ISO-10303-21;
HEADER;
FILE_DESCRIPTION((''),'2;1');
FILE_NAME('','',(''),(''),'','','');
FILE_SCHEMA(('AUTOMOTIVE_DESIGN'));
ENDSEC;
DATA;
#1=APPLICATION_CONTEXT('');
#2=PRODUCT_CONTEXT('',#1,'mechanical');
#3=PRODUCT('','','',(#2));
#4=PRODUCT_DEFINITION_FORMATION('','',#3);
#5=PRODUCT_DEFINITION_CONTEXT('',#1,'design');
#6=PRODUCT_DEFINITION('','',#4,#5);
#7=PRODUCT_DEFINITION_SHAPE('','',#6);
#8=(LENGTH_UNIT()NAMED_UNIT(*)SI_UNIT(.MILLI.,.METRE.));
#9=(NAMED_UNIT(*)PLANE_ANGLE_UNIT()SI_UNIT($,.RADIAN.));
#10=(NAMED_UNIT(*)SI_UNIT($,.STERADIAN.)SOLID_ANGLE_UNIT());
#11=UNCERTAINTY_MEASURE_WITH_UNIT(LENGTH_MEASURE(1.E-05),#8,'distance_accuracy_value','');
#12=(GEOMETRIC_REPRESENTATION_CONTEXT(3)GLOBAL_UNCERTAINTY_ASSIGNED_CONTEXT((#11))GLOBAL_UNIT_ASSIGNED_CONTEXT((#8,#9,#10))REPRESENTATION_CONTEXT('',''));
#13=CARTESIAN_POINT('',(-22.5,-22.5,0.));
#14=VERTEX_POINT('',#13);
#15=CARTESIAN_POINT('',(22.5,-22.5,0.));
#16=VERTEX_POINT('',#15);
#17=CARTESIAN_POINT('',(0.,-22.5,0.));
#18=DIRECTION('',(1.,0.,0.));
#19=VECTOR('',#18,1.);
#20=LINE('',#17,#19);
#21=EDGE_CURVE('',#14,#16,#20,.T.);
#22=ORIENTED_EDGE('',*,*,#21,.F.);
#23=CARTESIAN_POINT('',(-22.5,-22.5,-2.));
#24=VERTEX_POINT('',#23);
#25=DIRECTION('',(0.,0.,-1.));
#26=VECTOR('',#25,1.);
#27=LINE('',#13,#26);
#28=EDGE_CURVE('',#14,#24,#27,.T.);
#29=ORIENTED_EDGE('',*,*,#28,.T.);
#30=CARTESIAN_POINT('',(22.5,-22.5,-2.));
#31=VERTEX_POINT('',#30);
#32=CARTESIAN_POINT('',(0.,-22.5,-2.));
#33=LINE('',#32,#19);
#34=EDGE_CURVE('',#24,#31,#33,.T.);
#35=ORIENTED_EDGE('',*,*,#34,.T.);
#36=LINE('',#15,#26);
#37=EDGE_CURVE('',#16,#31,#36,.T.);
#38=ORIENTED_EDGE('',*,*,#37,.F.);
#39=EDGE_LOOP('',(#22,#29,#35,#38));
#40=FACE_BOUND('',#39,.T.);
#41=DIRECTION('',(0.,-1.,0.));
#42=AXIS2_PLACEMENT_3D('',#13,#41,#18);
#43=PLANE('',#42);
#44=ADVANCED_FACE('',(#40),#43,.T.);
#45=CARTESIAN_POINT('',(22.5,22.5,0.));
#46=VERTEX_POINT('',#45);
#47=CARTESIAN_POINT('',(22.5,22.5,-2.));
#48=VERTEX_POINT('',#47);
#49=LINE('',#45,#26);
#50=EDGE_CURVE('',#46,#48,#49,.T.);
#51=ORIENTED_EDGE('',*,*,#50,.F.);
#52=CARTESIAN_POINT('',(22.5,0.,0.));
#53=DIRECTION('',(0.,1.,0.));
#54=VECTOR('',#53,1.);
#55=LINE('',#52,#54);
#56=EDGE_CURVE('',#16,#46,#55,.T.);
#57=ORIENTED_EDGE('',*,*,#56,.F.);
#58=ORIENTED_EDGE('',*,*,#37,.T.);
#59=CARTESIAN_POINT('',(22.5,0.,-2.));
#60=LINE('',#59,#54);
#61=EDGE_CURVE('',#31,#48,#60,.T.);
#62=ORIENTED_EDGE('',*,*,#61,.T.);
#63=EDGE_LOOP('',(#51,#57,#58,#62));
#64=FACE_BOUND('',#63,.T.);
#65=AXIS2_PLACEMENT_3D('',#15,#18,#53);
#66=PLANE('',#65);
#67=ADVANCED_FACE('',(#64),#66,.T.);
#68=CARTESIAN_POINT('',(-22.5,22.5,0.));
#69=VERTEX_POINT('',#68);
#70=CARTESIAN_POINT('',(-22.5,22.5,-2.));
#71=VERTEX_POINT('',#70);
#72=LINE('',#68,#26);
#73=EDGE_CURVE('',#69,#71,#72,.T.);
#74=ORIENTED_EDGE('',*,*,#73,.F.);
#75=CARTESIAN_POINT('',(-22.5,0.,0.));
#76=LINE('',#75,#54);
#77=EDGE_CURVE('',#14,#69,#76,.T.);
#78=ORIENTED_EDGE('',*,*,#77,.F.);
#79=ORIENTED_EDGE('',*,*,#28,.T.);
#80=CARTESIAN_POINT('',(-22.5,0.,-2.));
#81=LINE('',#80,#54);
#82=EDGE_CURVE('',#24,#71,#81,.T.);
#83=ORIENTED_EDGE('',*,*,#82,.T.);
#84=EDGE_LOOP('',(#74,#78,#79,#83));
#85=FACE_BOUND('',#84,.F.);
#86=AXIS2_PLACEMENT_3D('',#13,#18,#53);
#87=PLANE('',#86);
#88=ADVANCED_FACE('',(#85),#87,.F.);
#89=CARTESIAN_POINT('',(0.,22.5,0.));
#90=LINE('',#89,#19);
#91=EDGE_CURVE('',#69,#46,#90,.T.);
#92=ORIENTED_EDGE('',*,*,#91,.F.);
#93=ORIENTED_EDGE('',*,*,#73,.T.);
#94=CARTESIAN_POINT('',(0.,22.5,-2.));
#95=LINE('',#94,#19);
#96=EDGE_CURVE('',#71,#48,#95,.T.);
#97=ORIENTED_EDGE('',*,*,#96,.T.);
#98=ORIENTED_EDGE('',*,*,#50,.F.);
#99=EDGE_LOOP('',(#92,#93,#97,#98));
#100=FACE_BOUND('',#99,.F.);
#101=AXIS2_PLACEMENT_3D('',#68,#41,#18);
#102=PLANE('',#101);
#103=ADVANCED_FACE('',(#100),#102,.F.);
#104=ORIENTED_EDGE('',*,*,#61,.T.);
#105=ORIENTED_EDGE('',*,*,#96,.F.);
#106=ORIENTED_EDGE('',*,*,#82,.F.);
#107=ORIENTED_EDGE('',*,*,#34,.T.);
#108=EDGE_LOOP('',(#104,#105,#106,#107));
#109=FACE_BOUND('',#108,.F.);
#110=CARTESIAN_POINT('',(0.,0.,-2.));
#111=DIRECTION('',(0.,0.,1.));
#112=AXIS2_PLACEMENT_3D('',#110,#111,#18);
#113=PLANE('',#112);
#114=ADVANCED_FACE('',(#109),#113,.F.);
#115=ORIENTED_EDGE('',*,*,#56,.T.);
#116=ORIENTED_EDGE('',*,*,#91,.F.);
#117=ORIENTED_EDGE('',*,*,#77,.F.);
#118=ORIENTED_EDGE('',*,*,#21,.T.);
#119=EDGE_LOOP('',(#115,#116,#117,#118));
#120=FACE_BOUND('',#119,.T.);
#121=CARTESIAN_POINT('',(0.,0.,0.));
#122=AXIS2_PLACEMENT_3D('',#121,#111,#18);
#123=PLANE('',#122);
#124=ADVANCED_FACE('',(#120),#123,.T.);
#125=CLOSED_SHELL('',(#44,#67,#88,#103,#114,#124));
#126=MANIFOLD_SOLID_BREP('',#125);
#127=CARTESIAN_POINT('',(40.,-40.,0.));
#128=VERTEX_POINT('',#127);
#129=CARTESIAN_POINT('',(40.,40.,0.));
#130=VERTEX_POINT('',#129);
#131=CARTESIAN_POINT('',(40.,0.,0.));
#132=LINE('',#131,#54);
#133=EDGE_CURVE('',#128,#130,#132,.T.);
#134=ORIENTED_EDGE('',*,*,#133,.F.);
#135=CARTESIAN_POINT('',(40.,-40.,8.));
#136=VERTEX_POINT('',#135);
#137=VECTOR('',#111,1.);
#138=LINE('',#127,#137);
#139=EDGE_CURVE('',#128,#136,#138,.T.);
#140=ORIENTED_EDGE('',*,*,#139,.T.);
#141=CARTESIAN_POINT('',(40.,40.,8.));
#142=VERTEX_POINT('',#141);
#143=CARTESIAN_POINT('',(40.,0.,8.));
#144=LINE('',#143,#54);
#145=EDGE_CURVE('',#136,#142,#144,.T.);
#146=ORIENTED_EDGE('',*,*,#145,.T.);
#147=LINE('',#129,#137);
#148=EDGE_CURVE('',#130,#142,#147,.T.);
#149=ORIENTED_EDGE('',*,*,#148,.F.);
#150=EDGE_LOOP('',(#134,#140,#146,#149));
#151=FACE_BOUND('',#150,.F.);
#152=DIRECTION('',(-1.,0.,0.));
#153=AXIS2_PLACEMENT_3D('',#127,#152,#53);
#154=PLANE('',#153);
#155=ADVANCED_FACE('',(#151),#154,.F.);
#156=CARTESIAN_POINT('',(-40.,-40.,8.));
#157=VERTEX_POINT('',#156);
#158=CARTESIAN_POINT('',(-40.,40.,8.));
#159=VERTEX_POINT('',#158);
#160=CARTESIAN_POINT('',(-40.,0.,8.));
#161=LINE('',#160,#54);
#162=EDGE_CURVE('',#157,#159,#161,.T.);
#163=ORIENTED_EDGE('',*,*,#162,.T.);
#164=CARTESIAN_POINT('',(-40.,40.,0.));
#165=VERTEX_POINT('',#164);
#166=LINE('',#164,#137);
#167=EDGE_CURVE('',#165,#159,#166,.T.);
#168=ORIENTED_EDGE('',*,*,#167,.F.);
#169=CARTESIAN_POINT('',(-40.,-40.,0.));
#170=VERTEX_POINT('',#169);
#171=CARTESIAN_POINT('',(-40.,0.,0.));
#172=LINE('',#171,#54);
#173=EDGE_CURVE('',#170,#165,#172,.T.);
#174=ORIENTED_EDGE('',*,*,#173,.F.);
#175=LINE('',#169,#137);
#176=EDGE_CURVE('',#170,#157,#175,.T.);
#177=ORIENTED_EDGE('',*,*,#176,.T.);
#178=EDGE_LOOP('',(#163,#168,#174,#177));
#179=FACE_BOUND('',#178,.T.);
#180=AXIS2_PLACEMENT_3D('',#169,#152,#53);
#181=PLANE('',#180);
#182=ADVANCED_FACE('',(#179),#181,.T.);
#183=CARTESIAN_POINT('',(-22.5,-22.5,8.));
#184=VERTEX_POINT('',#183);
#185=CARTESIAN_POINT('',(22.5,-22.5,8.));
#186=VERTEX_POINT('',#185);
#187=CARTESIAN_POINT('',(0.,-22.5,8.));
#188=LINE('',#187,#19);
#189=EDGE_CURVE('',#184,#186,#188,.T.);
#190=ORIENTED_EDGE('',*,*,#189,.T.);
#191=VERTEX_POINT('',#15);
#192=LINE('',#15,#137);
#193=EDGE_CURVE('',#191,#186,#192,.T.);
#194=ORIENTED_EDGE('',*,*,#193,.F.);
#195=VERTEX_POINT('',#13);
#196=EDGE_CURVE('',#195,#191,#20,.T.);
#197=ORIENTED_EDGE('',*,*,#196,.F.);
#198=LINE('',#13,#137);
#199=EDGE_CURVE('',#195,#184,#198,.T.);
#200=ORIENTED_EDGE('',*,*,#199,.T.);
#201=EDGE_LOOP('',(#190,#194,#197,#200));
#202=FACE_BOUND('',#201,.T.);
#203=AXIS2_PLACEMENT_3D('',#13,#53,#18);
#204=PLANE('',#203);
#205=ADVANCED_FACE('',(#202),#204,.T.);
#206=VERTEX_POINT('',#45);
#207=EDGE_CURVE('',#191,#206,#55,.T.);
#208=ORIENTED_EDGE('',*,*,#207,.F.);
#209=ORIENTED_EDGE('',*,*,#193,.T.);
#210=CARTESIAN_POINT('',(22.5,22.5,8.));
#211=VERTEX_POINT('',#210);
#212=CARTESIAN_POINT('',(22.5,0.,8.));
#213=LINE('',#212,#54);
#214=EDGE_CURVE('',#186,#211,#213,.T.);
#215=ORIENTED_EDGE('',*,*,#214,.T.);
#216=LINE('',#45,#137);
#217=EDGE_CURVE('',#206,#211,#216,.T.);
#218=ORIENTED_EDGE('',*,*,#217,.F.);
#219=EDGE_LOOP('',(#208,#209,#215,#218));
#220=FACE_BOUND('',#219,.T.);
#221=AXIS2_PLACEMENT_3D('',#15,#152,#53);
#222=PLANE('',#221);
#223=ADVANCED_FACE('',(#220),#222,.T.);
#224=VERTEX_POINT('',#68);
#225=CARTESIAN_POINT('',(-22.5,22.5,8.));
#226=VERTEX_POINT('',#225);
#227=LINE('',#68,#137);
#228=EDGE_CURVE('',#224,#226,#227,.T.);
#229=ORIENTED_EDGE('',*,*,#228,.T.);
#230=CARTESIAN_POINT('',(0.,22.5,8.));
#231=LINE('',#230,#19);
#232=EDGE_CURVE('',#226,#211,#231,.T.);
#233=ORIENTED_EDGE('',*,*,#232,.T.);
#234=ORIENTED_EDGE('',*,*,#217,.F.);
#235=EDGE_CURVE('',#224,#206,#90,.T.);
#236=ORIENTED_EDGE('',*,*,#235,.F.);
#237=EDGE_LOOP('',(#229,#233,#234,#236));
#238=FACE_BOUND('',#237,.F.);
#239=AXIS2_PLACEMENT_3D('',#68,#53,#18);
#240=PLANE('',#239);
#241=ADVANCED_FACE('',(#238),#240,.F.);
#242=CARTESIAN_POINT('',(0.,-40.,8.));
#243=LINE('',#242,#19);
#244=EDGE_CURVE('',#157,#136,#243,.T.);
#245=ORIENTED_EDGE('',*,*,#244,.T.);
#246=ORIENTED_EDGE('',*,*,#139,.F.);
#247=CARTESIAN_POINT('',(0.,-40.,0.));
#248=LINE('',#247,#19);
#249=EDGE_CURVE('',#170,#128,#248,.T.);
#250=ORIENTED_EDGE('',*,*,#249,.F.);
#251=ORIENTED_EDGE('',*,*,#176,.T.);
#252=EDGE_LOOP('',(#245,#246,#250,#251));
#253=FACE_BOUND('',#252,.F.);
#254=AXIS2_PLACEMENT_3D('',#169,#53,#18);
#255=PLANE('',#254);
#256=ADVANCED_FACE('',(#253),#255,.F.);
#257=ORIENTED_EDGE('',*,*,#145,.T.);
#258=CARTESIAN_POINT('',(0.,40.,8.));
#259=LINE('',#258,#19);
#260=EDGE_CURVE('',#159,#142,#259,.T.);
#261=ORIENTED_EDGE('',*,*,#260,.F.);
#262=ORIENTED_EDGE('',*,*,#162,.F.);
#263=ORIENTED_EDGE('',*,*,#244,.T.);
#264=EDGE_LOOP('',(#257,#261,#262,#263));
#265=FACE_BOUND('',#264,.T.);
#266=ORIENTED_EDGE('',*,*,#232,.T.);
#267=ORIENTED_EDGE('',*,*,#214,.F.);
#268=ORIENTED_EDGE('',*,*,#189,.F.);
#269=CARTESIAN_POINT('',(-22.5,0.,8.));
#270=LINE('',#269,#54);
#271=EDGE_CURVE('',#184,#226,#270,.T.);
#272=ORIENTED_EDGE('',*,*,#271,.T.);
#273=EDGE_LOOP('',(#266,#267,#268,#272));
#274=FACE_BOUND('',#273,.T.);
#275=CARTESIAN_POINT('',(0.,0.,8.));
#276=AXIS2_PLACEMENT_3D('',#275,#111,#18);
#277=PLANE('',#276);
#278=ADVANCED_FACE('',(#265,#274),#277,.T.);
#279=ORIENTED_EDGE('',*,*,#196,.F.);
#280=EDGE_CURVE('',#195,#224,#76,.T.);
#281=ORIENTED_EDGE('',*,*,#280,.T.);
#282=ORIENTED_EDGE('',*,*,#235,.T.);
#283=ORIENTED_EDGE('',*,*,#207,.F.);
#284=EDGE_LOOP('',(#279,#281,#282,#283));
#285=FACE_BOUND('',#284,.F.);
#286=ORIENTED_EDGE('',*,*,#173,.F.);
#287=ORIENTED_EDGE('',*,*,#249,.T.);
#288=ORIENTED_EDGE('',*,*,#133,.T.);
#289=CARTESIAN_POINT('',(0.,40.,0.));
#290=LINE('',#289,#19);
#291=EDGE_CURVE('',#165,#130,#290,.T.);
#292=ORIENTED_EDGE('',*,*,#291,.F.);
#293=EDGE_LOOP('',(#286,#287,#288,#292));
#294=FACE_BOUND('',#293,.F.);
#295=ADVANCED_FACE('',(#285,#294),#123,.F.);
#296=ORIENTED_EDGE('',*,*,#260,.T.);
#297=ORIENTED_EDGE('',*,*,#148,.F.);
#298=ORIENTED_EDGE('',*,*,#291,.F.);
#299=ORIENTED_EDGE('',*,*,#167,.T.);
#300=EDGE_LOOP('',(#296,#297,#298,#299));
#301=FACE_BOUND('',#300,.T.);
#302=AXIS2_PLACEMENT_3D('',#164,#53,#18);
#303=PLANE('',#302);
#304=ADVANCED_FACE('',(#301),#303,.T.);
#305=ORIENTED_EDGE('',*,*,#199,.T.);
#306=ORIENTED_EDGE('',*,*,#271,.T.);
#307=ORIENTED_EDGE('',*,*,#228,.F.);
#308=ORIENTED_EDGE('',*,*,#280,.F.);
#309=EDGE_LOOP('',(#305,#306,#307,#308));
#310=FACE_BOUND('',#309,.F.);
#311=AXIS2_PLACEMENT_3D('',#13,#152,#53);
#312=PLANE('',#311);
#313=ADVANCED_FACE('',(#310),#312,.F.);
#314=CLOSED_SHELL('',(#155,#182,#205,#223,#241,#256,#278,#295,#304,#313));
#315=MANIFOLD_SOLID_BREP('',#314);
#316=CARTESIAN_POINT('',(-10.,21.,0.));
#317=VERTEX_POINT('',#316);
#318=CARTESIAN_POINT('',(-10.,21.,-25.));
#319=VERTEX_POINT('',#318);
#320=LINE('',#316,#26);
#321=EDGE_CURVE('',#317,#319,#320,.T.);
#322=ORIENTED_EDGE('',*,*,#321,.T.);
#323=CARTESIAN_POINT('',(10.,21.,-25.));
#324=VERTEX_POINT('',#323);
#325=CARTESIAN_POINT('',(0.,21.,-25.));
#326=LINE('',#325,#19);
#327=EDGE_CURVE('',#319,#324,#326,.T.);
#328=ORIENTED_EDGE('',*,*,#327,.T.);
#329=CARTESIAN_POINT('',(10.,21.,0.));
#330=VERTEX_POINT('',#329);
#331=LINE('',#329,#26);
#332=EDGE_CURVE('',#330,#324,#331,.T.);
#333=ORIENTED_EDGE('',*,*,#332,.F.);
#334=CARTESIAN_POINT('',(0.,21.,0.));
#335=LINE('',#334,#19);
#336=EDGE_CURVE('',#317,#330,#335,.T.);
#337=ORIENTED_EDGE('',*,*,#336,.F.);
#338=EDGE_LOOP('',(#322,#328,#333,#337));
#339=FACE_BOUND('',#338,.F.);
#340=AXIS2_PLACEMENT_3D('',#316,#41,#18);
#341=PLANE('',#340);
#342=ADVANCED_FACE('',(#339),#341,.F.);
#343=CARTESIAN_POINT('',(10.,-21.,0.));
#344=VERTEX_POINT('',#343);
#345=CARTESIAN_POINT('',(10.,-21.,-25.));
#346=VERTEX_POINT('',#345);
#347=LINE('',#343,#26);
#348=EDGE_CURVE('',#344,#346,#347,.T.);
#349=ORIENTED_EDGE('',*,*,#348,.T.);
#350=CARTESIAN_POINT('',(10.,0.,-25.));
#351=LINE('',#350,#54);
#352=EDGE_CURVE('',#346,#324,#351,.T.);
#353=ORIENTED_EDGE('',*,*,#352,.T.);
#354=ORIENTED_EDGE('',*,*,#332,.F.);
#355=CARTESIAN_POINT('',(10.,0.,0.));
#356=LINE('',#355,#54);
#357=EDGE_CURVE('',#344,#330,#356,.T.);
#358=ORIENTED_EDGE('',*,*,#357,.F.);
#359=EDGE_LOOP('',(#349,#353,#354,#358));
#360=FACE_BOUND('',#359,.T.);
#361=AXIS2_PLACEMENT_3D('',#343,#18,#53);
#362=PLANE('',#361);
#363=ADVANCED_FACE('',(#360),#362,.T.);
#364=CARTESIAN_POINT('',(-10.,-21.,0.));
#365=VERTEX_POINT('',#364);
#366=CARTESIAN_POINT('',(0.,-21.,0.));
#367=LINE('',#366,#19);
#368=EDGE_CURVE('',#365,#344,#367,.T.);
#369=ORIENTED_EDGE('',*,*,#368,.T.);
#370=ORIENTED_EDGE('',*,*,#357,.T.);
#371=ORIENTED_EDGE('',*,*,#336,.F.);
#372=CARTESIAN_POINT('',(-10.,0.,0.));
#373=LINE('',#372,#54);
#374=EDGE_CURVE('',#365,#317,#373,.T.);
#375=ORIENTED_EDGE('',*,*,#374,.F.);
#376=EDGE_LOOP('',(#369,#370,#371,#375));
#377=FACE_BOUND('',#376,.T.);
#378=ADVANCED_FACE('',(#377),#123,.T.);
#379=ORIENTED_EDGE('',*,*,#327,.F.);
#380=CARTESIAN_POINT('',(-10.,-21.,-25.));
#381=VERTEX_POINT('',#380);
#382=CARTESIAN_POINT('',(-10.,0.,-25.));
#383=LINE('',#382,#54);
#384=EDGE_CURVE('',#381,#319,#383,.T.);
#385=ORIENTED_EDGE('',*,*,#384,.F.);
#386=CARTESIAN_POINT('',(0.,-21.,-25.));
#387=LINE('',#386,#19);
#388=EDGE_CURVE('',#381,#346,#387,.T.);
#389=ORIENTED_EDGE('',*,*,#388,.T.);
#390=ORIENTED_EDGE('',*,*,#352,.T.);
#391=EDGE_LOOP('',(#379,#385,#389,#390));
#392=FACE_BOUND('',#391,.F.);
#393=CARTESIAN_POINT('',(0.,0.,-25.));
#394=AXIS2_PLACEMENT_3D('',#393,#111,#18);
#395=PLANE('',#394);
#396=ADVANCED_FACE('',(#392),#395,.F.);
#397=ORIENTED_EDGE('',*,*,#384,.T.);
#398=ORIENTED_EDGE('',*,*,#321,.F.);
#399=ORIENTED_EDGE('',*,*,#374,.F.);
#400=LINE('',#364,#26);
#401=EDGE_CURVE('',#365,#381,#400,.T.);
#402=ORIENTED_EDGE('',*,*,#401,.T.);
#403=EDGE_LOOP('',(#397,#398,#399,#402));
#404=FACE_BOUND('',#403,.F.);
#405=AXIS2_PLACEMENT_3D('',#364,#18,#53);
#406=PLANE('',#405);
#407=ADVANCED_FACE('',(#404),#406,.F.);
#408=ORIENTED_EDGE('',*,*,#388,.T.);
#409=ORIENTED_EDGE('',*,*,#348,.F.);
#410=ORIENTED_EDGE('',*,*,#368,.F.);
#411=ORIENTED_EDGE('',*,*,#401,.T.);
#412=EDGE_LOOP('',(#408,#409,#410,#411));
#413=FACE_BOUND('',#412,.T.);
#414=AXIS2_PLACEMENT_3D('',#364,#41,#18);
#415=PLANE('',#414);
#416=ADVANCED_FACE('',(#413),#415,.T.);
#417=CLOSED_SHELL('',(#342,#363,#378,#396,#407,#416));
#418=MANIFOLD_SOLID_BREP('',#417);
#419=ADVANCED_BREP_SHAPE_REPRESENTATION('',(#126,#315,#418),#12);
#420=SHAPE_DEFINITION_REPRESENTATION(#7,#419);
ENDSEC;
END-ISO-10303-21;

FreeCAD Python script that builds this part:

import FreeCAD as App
import Part
import Sketcher
from FreeCAD import Vector

doc = App.newDocument("Part")
params = doc.addObject("Spreadsheet::Sheet", "Params")
for row, (alias, value) in enumerate([
    ("sketch1_width", "80 mm"),
    ("sketch1_width2", "45 mm"),
    ("pad1_length", "8 mm"),
    ("sketch2_width", "20 mm"),
    ("sketch2_height", "42 mm"),
    ("pad2_length", "25 mm"),
    ("sketch3_width", "45 mm"),
    ("pad3_length", "2 mm"),
], start=1):
    params.set(f"A{row}", alias)
    params.set(f"B{row}", "=" + value)
    params.setAlias(f"B{row}", alias)

body = doc.addObject("PartDesign::Body", "Body")

# Sketch on XY plane
sketch1 = body.newObject("Sketcher::SketchObject", "Sketch")
sketch1.AttachmentSupport = (doc.getObject("XY_Plane"), [""])
sketch1.MapMode = "FlatFace"
sketch1.addGeometry(Part.LineSegment(Vector(-40, 40, 0), Vector(-40, -40, 0)), False)
sketch1.addGeometry(Part.LineSegment(Vector(-40, -40, 0), Vector(40, -40, 0)), False)
sketch1.addGeometry(Part.LineSegment(Vector(40, -40, 0), Vector(40, 40, 0)), False)
sketch1.addGeometry(Part.LineSegment(Vector(40, 40, 0), Vector(-40, 40, 0)), False)
sketch1.addGeometry(Part.LineSegment(Vector(22, -22, 0), Vector(-22, -22, 0)), False)
sketch1.addGeometry(Part.LineSegment(Vector(-22, -22, 0), Vector(-22, 22, 0)), False)
sketch1.addGeometry(Part.LineSegment(Vector(-22, 22, 0), Vector(22, 22, 0)), False)
sketch1.addGeometry(Part.LineSegment(Vector(22, 22, 0), Vector(22, -22, 0)), False)
sketch1.addConstraint(Sketcher.Constraint("Coincident", 0, 2, 1, 1))
sketch1.addConstraint(Sketcher.Constraint("Coincident", 1, 2, 2, 1))
sketch1.addConstraint(Sketcher.Constraint("Coincident", 2, 2, 3, 1))
sketch1.addConstraint(Sketcher.Constraint("Coincident", 3, 2, 0, 1))
sketch1.addConstraint(Sketcher.Constraint("Coincident", 4, 2, 5, 1))
sketch1.addConstraint(Sketcher.Constraint("Coincident", 5, 2, 6, 1))
sketch1.addConstraint(Sketcher.Constraint("Coincident", 6, 2, 7, 1))
sketch1.addConstraint(Sketcher.Constraint("Coincident", 7, 2, 4, 1))
sketch1.addConstraint(Sketcher.Constraint("Vertical", 0))
sketch1.addConstraint(Sketcher.Constraint("Horizontal", 1))
sketch1.addConstraint(Sketcher.Constraint("Vertical", 2))
sketch1.addConstraint(Sketcher.Constraint("Horizontal", 3))
sketch1.addConstraint(Sketcher.Constraint("Horizontal", 4))
sketch1.addConstraint(Sketcher.Constraint("Vertical", 5))
sketch1.addConstraint(Sketcher.Constraint("Horizontal", 6))
sketch1.addConstraint(Sketcher.Constraint("Vertical", 7))
sketch1.addConstraint(Sketcher.Constraint("Symmetric", 0, 2, 2, 2, -1, 1))
sketch1.addConstraint(Sketcher.Constraint("Symmetric", 4, 2, 6, 2, -1, 1))
sketch1.addConstraint(Sketcher.Constraint("Equal", 3, 0))
sketch1.addConstraint(Sketcher.Constraint("Equal", 6, 5))
sketch1.addConstraint(Sketcher.Constraint("DistanceX", 1, 1, 1, 2, 80.0))
sketch1.addConstraint(Sketcher.Constraint("DistanceX", 4, 2, 4, 1, 45.0))
sketch1.setExpression("Constraints[20]", "Params.sketch1_width")
sketch1.setExpression("Constraints[21]", "Params.sketch1_width2")
pad1 = body.newObject("PartDesign::Pad", "Pad")
pad1.Profile = sketch1
pad1.setExpression("Length", "Params.pad1_length")
body2 = doc.addObject("PartDesign::Body", "Body001")

# Sketch on XY plane
sketch2 = body2.newObject("Sketcher::SketchObject", "Sketch001")
sketch2.AttachmentSupport = (doc.getObject("XY_Plane001"), [""])
sketch2.MapMode = "FlatFace"
sketch2.addGeometry(Part.LineSegment(Vector(-10, 21, 0), Vector(-10, -21, 0)), False)
sketch2.addGeometry(Part.LineSegment(Vector(-10, -21, 0), Vector(10, -21, 0)), False)
sketch2.addGeometry(Part.LineSegment(Vector(10, -21, 0), Vector(10, 21, 0)), False)
sketch2.addGeometry(Part.LineSegment(Vector(10, 21, 0), Vector(-10, 21, 0)), False)
sketch2.addConstraint(Sketcher.Constraint("Coincident", 0, 2, 1, 1))
sketch2.addConstraint(Sketcher.Constraint("Coincident", 1, 2, 2, 1))
sketch2.addConstraint(Sketcher.Constraint("Coincident", 2, 2, 3, 1))
sketch2.addConstraint(Sketcher.Constraint("Coincident", 3, 2, 0, 1))
sketch2.addConstraint(Sketcher.Constraint("Vertical", 0))
sketch2.addConstraint(Sketcher.Constraint("Horizontal", 1))
sketch2.addConstraint(Sketcher.Constraint("Vertical", 2))
sketch2.addConstraint(Sketcher.Constraint("Horizontal", 3))
sketch2.addConstraint(Sketcher.Constraint("Symmetric", 0, 2, 2, 2, -1, 1))
sketch2.addConstraint(Sketcher.Constraint("DistanceX", 1, 1, 1, 2, 20.0))
sketch2.addConstraint(Sketcher.Constraint("DistanceY", 0, 2, 0, 1, 42.0))
sketch2.setExpression("Constraints[9]", "Params.sketch2_width")
sketch2.setExpression("Constraints[10]", "Params.sketch2_height")
pad2 = body2.newObject("PartDesign::Pad", "Pad001")
pad2.Profile = sketch2
pad2.setExpression("Length", "Params.pad2_length")
pad2.Reversed = True
body3 = doc.addObject("PartDesign::Body", "Body002")

# Sketch on XY plane
sketch3 = body3.newObject("Sketcher::SketchObject", "Sketch002")
sketch3.AttachmentSupport = (doc.getObject("XY_Plane002"), [""])
sketch3.MapMode = "FlatFace"
sketch3.addGeometry(Part.LineSegment(Vector(-22, 22, 0), Vector(-22, -22, 0)), False)
sketch3.addGeometry(Part.LineSegment(Vector(-22, -22, 0), Vector(22, -22, 0)), False)
sketch3.addGeometry(Part.LineSegment(Vector(22, -22, 0), Vector(22, 22, 0)), False)
sketch3.addGeometry(Part.LineSegment(Vector(22, 22, 0), Vector(-22, 22, 0)), False)
sketch3.addConstraint(Sketcher.Constraint("Coincident", 0, 2, 1, 1))
sketch3.addConstraint(Sketcher.Constraint("Coincident", 1, 2, 2, 1))
sketch3.addConstraint(Sketcher.Constraint("Coincident", 2, 2, 3, 1))
sketch3.addConstraint(Sketcher.Constraint("Coincident", 3, 2, 0, 1))
sketch3.addConstraint(Sketcher.Constraint("Vertical", 0))
sketch3.addConstraint(Sketcher.Constraint("Horizontal", 1))
sketch3.addConstraint(Sketcher.Constraint("Vertical", 2))
sketch3.addConstraint(Sketcher.Constraint("Horizontal", 3))
sketch3.addConstraint(Sketcher.Constraint("Symmetric", 0, 2, 2, 2, -1, 1))
sketch3.addConstraint(Sketcher.Constraint("Equal", 3, 0))
sketch3.addConstraint(Sketcher.Constraint("DistanceX", 1, 1, 1, 2, 45.0))
sketch3.setExpression("Constraints[10]", "Params.sketch3_width")
pad3 = body3.newObject("PartDesign::Pad", "Pad002")
pad3.Profile = sketch3
pad3.setExpression("Length", "Params.pad3_length")
pad3.Reversed = True

doc.recompute()
